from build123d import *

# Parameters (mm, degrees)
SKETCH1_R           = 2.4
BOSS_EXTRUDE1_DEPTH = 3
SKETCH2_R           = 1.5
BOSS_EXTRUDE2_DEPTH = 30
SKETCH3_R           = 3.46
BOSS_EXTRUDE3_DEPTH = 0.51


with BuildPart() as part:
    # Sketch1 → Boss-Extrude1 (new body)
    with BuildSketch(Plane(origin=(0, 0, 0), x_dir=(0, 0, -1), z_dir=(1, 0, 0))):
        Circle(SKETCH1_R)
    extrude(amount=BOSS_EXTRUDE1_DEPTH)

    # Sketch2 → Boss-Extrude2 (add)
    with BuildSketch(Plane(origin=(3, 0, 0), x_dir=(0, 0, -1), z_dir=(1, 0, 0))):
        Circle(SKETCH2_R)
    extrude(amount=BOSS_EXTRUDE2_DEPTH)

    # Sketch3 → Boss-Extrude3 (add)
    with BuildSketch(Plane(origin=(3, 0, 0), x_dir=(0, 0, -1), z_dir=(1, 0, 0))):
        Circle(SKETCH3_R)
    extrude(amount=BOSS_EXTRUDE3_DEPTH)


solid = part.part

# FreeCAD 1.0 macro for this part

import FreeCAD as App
import Part
import Sketcher
from FreeCAD import Vector

doc = App.newDocument("Part")
params = doc.addObject("Spreadsheet::Sheet", "Params")
for row, (alias, value) in enumerate([
    ("sketch1_diameter", "4.8 mm"),
    ("pad1_length", "3 mm"),
    ("sketch2_diameter", "3 mm"),
    ("pad2_length", "30 mm"),
    ("sketch3_diameter", "6.92 mm"),
    ("pad3_length", "0.51 mm"),
], start=1):
    params.set(f"A{row}", alias)
    params.set(f"B{row}", "=" + value)
    params.setAlias(f"B{row}", alias)

body = doc.addObject("PartDesign::Body", "Body")

# Sketch on YZ plane
sketch1 = body.newObject("Sketcher::SketchObject", "Sketch")
sketch1.AttachmentSupport = (doc.getObject("YZ_Plane"), [""])
sketch1.MapMode = "FlatFace"
sketch1.addGeometry(Part.Circle(Vector(0, 0, 0), Vector(0, 0, 1), 2.4), False)
sketch1.addConstraint(Sketcher.Constraint("Coincident", 0, 3, -1, 1))
sketch1.addConstraint(Sketcher.Constraint("Diameter", 0, 4.8))
sketch1.setExpression("Constraints[1]", "Params.sketch1_diameter")
pad1 = body.newObject("PartDesign::Pad", "Pad")
pad1.Profile = sketch1
pad1.setExpression("Length", "Params.pad1_length")

# Sketch on YZ plane
sketch2 = body.newObject("Sketcher::SketchObject", "Sketch001")
sketch2.AttachmentSupport = (doc.getObject("YZ_Plane"), [""])
sketch2.MapMode = "FlatFace"
sketch2.AttachmentOffset = App.Placement(Vector(0, 0, 3), App.Rotation())
sketch2.addGeometry(Part.Circle(Vector(0, 0, 0), Vector(0, 0, 1), 1.5), False)
sketch2.addConstraint(Sketcher.Constraint("Coincident", 0, 3, -1, 1))
sketch2.addConstraint(Sketcher.Constraint("Diameter", 0, 3.0))
sketch2.setExpression("Constraints[1]", "Params.sketch2_diameter")
pad2 = body.newObject("PartDesign::Pad", "Pad001")
pad2.Profile = sketch2
pad2.setExpression("Length", "Params.pad2_length")

# Sketch on YZ plane
sketch3 = body.newObject("Sketcher::SketchObject", "Sketch002")
sketch3.AttachmentSupport = (doc.getObject("YZ_Plane"), [""])
sketch3.MapMode = "FlatFace"
sketch3.AttachmentOffset = App.Placement(Vector(0, 0, 3), App.Rotation())
sketch3.addGeometry(Part.Circle(Vector(0, 0, 0), Vector(0, 0, 1), 3.5), False)
sketch3.addConstraint(Sketcher.Constraint("Coincident", 0, 3, -1, 1))
sketch3.addConstraint(Sketcher.Constraint("Diameter", 0, 6.92))
sketch3.setExpression("Constraints[1]", "Params.sketch3_diameter")
pad3 = body.newObject("PartDesign::Pad", "Pad002")
pad3.Profile = sketch3
pad3.setExpression("Length", "Params.pad3_length")

doc.recompute()
